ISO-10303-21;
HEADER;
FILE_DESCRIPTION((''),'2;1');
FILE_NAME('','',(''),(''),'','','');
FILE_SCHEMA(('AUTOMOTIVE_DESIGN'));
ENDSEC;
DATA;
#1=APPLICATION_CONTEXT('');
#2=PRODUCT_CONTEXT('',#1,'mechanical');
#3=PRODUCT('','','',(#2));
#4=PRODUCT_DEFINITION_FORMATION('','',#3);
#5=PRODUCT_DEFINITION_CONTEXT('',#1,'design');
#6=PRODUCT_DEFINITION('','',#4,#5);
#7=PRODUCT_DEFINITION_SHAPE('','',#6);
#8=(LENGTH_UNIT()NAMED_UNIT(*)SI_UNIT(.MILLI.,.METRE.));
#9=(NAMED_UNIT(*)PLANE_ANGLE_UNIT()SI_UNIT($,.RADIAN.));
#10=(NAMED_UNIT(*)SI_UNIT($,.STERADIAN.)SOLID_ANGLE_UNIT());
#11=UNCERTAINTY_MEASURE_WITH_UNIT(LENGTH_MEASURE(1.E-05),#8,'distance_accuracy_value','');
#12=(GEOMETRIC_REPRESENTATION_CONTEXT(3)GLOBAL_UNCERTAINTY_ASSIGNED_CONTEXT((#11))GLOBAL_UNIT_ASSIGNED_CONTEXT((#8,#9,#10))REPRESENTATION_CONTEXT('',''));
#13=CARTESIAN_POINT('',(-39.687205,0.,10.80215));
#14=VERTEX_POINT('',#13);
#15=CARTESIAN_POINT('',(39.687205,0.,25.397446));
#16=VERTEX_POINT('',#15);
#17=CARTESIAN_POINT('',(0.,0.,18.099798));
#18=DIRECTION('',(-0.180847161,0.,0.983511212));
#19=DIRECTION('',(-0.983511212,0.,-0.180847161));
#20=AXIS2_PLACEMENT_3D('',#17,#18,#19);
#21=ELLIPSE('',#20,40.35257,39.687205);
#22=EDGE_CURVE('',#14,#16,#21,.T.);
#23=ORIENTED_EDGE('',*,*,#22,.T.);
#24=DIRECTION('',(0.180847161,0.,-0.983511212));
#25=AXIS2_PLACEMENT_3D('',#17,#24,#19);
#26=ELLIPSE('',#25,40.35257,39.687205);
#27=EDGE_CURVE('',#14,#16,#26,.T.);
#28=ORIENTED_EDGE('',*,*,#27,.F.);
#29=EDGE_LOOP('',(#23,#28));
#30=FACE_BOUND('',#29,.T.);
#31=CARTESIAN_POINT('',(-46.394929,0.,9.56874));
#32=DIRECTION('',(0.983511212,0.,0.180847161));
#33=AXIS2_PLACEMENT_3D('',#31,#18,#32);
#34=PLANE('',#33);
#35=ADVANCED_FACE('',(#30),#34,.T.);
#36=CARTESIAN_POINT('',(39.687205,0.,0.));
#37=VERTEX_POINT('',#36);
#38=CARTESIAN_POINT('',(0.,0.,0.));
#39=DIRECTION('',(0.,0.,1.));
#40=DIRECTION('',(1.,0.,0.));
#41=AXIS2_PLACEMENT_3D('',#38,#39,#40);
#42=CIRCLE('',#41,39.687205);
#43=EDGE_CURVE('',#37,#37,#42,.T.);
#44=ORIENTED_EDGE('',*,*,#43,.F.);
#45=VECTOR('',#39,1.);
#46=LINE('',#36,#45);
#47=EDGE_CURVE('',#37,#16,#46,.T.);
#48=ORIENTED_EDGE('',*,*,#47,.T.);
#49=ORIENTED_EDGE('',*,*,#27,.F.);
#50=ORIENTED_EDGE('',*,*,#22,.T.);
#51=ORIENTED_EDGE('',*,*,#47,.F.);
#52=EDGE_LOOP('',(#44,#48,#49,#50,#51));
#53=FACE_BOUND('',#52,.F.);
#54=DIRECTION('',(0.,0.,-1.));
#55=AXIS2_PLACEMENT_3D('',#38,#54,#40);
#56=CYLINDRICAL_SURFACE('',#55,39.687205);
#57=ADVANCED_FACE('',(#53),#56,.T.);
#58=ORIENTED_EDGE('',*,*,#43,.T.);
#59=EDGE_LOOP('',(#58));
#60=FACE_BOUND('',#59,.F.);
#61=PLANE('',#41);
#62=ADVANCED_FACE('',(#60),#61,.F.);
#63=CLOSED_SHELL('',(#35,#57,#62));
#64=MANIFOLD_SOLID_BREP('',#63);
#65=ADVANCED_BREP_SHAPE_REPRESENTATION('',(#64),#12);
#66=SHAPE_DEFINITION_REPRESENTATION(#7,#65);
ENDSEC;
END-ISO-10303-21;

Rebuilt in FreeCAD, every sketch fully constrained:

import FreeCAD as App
import Part
import Sketcher
from FreeCAD import Vector
Q = App.Units.Quantity

doc = App.newDocument("Part")
params = doc.addObject("Spreadsheet::Sheet", "Params")
for row, (alias, value) in enumerate([
    ("pad1_length", "1 in"),
], start=1):
    params.set(f"A{row}", alias)
    params.set(f"B{row}", "=" + value)
    params.setAlias(f"B{row}", alias)

body = doc.addObject("PartDesign::Body", "Body")

# Sketch on XY plane
sketch1 = doc.addObject("Sketcher::SketchObject", "Sketch")
body.addObject(sketch1)
sketch1.AttachmentSupport = (doc.XY_Plane, [""])
sketch1.MapMode = "FlatFace"
sketch1.addGeometry(Part.Circle(Vector(0, 0, 0), Vector(0, 0, 1), 40), False)
sketch1.addConstraint([
    Sketcher.Constraint("Coincident", 0, 3, -1, 1),
    Sketcher.Constraint("Diameter", 0, Q("79.37441 mm")),
])
pad1 = doc.addObject("PartDesign::Pad", "Pad")
body.addObject(pad1)
pad1.Profile = sketch1
pad1.setExpression("Length", "Params.pad1_length")

# Sketch on XZ plane
sketch2 = doc.addObject("Sketcher::SketchObject", "Sketch001")
body.addObject(sketch2)
sketch2.AttachmentSupport = (doc.XZ_Plane, [""])
sketch2.MapMode = "FlatFace"
sketch2.addGeometry([
    Part.LineSegment(Vector(-46, 10, 0), Vector(40, 25, 0)),
    Part.LineSegment(Vector(40, 25, 0), Vector(-46, 32, 0)),
    Part.LineSegment(Vector(-46, 32, 0), Vector(-46, 10, 0)),
], False)
sketch2.addConstraint([
    Sketcher.Constraint("Coincident", 0, 2, 1, 1),
    Sketcher.Constraint("Coincident", 1, 2, 2, 1),
    Sketcher.Constraint("Coincident", 2, 2, 0, 1),
    Sketcher.Constraint("Vertical", 2),
    Sketcher.Constraint("DistanceY", 2, 2, 2, 1, Q("22.256199 mm")),
    Sketcher.Constraint("DistanceY", -1, 1, 0, 2, Q("25.419498 mm")),
    Sketcher.Constraint("Distance", 0, Q("87.647259 mm")),
    Sketcher.Constraint("Distance", 1, Q("86.43972 mm")),
    Sketcher.Constraint("DistanceX", 1, 2, -1, 1, Q("46.394929 mm")),
])
pocket1 = doc.addObject("PartDesign::Pocket", "Pocket")
body.addObject(pocket1)
pocket1.Profile = sketch2
pocket1.Type = "ThroughAll"
pocket1.Midplane = True

doc.recompute()
